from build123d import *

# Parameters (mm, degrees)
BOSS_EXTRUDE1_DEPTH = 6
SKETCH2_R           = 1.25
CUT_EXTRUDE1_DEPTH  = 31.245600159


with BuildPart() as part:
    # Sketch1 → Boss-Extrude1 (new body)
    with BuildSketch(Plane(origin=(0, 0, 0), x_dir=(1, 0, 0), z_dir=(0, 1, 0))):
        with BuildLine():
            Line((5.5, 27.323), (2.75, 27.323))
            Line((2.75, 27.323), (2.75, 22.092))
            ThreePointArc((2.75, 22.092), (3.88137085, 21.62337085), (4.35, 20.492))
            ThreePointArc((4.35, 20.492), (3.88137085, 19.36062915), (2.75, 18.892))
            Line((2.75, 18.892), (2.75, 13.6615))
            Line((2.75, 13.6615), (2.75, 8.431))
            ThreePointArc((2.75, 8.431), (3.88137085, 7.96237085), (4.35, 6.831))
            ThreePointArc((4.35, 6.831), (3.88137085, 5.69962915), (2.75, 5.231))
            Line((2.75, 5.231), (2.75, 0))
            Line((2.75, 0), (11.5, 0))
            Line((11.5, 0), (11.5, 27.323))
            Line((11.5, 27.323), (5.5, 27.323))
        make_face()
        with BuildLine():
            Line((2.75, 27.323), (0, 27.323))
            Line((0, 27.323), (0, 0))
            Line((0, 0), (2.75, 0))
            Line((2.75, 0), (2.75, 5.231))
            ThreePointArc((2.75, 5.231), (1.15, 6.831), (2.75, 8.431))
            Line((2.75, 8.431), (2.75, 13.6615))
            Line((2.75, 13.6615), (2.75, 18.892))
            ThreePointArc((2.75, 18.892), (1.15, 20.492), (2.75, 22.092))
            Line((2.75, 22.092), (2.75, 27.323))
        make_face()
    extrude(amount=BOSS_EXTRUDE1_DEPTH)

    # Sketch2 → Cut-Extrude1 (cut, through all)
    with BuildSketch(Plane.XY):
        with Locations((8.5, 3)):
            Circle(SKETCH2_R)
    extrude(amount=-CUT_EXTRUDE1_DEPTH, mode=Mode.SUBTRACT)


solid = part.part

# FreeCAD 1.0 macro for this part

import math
import FreeCAD as App
import Part
import Sketcher
Q = App.Units.Quantity


def add_polygon(sketch, points):
    """Adds a closed chain of lines whose ends are joined by coincident constraints."""
    first, n = sketch.GeometryCount, len(points)
    for a, b in zip(points, points[1:] + points[:1]):
        sketch.addGeometry(Part.LineSegment(App.Vector(*a, 0), App.Vector(*b, 0)), False)
    for i in range(n):
        sketch.addConstraint(Sketcher.Constraint("Coincident", first + i, 2, first + (i + 1) % n, 1))

doc = App.newDocument("Part")
body = doc.addObject("PartDesign::Body", "Body")

# Sketch on XZ plane
sketch1 = body.newObject("Sketcher::SketchObject", "Sketch")
sketch1.AttachmentSupport = (doc.getObject("XZ_Plane"), [""])
sketch1.MapMode = "FlatFace"
add_polygon(sketch1, [(11.5, 0), (11.5, -27.3), (0, -27.3), (0, 0)])  # lines 0-3
sketch1.addGeometry(Part.ArcOfCircle(Part.Circle(App.Vector(2.8, -20.5, 0), App.Vector(0, 0, 1), 1.6), math.radians(-90), math.radians(0)), False)  # 4
sketch1.addGeometry(Part.ArcOfCircle(Part.Circle(App.Vector(2.8, -20.5, 0), App.Vector(0, 0, 1), 1.6), math.radians(0), math.radians(90)), False)  # 5
sketch1.addGeometry(Part.ArcOfCircle(Part.Circle(App.Vector(2.8, -20.5, 0), App.Vector(0, 0, 1), 1.6), math.radians(90), math.radians(270)), False)  # 6
sketch1.addGeometry(Part.ArcOfCircle(Part.Circle(App.Vector(2.8, -6.8, 0), App.Vector(0, 0, 1), 1.6), math.radians(-90), math.radians(0)), False)  # 7
sketch1.addGeometry(Part.ArcOfCircle(Part.Circle(App.Vector(2.8, -6.8, 0), App.Vector(0, 0, 1), 1.6), math.radians(0), math.radians(90)), False)  # 8
sketch1.addGeometry(Part.ArcOfCircle(Part.Circle(App.Vector(2.8, -6.8, 0), App.Vector(0, 0, 1), 1.6), math.radians(90), math.radians(270)), False)  # 9
sketch1.addConstraint(Sketcher.Constraint("Tangent", 4, 2, 5, 1))
sketch1.addConstraint(Sketcher.Constraint("Tangent", 5, 2, 6, 1))
sketch1.addConstraint(Sketcher.Constraint("Tangent", 6, 2, 4, 1))
sketch1.addConstraint(Sketcher.Constraint("Tangent", 7, 2, 8, 1))
sketch1.addConstraint(Sketcher.Constraint("Tangent", 8, 2, 9, 1))
sketch1.addConstraint(Sketcher.Constraint("Tangent", 9, 2, 7, 1))
sketch1.addConstraint(Sketcher.Constraint("Vertical", 0))
sketch1.addConstraint(Sketcher.Constraint("Horizontal", 1))
sketch1.addConstraint(Sketcher.Constraint("Vertical", 2))
sketch1.addConstraint(Sketcher.Constraint("Horizontal", 3))
sketch1.addConstraint(Sketcher.Constraint("Coincident", 2, 2, -1, 1))
sketch1.addConstraint(Sketcher.Constraint("Equal", 6, 7))
sketch1.addConstraint(Sketcher.Constraint("Horizontal", 6, 3, 4, 2))
sketch1.addConstraint(Sketcher.Constraint("Horizontal", 9, 3, 7, 2))
sketch1.addConstraint(Sketcher.Constraint("Vertical", 6, 3, 7, 3))
sketch1.addConstraint(Sketcher.Constraint("Vertical", 9, 3, 5, 2))
sketch1.addConstraint(Sketcher.Constraint("Vertical", 5, 2, 6, 2))
sketch1.addConstraint(Sketcher.Constraint("Vertical", 6, 2, 8, 2))
sketch1.addConstraint(Sketcher.Constraint("Vertical", 8, 2, 9, 2))
sketch1.addConstraint(Sketcher.Constraint("Radius", 4, Q("1.6 mm")))
sketch1.addConstraint(Sketcher.Constraint("DistanceX", 1, 2, 1, 1, Q("11.5 mm")))
sketch1.addConstraint(Sketcher.Constraint("DistanceY", 0, 2, 0, 1, Q("27.323 mm")))
sketch1.addConstraint(Sketcher.Constraint("DistanceX", -1, 1, 4, 3, Q("2.75 mm")))
sketch1.addConstraint(Sketcher.Constraint("DistanceY", 4, 3, -1, 1, Q("20.492 mm")))
sketch1.addConstraint(Sketcher.Constraint("DistanceY", 7, 3, -1, 1, Q("6.831 mm")))
pad1 = body.newObject("PartDesign::Pad", "Pad")
pad1.Profile = sketch1
pad1.Length = 6
pad1.Reversed = True

# Sketch on XY plane
sketch2 = body.newObject("Sketcher::SketchObject", "Sketch001")
sketch2.AttachmentSupport = (doc.getObject("XY_Plane"), [""])
sketch2.MapMode = "FlatFace"
sketch2.addGeometry(Part.Circle(App.Vector(8.5, 3, 0), App.Vector(0, 0, 1), 1.2), False)
sketch2.addConstraint(Sketcher.Constraint("Diameter", 0, Q("2.5 mm")))
sketch2.addConstraint(Sketcher.Constraint("DistanceY", -1, 1, 0, 3, Q("3 mm")))
sketch2.addConstraint(Sketcher.Constraint("DistanceX", -1, 1, 0, 3, Q("8.5 mm")))
pocket1 = body.newObject("PartDesign::Pocket", "Pocket")
pocket1.Profile = sketch2
pocket1.Type = "ThroughAll"

doc.recompute()
